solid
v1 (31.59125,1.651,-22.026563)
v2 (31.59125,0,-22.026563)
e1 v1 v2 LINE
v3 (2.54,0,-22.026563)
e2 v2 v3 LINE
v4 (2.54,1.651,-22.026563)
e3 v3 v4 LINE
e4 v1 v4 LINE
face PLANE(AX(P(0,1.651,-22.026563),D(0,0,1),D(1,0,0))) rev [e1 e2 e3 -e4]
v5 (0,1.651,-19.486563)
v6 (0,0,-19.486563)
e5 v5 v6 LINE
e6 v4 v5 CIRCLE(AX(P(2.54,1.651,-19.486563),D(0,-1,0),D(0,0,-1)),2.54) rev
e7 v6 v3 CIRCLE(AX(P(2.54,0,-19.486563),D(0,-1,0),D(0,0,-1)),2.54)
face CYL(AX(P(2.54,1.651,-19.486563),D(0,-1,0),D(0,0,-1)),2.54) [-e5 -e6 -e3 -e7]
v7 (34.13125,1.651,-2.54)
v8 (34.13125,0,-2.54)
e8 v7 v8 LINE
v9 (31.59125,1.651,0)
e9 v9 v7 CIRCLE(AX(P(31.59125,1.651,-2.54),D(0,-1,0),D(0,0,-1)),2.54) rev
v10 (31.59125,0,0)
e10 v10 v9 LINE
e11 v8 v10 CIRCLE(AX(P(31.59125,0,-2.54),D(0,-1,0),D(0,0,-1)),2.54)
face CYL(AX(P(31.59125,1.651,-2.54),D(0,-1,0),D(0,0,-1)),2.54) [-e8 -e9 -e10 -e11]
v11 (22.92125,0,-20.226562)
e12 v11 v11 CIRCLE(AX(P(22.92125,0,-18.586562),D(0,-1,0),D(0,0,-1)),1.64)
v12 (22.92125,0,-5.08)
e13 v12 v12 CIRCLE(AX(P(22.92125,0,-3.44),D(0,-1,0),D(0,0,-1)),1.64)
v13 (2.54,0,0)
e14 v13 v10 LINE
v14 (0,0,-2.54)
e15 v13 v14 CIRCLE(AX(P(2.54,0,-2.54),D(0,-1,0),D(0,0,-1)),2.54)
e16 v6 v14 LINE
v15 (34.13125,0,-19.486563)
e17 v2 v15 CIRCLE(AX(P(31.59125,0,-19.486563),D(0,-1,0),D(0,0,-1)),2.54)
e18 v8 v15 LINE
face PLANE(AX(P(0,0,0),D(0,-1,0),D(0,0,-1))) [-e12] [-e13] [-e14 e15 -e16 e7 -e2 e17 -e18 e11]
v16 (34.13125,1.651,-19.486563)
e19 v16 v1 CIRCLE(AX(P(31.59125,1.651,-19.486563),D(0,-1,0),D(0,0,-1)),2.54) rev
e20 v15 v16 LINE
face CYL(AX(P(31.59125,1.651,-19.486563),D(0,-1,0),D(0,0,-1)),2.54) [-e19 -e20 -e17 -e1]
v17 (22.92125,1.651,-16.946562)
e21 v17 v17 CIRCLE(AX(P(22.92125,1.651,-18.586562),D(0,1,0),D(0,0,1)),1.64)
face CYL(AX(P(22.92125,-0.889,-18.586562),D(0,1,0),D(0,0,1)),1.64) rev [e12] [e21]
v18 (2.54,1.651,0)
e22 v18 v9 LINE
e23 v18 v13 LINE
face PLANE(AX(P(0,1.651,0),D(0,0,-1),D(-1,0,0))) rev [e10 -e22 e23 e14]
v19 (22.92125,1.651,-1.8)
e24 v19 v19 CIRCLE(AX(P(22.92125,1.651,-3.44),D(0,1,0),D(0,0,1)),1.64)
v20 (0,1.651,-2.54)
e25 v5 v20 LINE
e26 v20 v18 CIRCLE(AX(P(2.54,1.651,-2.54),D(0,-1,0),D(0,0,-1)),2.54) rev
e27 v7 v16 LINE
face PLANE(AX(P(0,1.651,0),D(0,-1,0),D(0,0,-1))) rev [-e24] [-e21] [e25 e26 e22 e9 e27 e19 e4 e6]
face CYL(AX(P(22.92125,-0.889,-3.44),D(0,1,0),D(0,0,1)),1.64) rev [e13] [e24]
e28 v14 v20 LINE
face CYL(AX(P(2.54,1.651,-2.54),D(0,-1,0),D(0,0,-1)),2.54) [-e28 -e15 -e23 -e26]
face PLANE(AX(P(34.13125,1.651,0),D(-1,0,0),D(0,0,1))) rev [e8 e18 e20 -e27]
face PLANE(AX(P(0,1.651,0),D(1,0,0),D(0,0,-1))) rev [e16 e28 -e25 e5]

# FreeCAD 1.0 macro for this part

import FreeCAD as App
import Part
import Sketcher
Q = App.Units.Quantity


def edges_at(feature, points):
    """Names of the edges that pass closest to the given points."""
    edges = feature.Shape.Edges
    near = lambda p: min(range(len(edges)), key=lambda i: edges[i].distToShape(Part.Vertex(*p))[0])
    return sorted({f"Edge{near(p) + 1}" for p in points})


def add_polygon(sketch, points):
    """Adds a closed chain of lines whose ends are joined by coincident constraints."""
    first, n = sketch.GeometryCount, len(points)
    for a, b in zip(points, points[1:] + points[:1]):
        sketch.addGeometry(Part.LineSegment(App.Vector(*a, 0), App.Vector(*b, 0)), False)
    for i in range(n):
        sketch.addConstraint(Sketcher.Constraint("Coincident", first + i, 2, first + (i + 1) % n, 1))

doc = App.newDocument("Part")
body = doc.addObject("PartDesign::Body", "Body")

# Sketch on XZ plane
sketch1 = body.newObject("Sketcher::SketchObject", "Sketch")
sketch1.AttachmentSupport = (doc.getObject("XZ_Plane"), [""])
sketch1.MapMode = "FlatFace"
add_polygon(sketch1, [(0, -22.026563), (0, 0), (34.13125, 0), (34.13125, -22.026563)])  # lines 0-3
sketch1.addConstraint([
    Sketcher.Constraint("Vertical", 0),
    Sketcher.Constraint("Horizontal", 1),
    Sketcher.Constraint("Vertical", 2),
    Sketcher.Constraint("Horizontal", 3),
    Sketcher.Constraint("Coincident", 0, 2, -1, 1),
    Sketcher.Constraint("DistanceX", 1, 1, 1, 2, Q("1.34375 in")),
    Sketcher.Constraint("DistanceY", 0, 1, 0, 2, Q("22.026563 mm")),
])
pad1 = body.newObject("PartDesign::Pad", "Pad")
pad1.Profile = sketch1
pad1.Length = Q("0.065 in")
pad1.Reversed = True
doc.recompute()

fillet = body.newObject("PartDesign::Fillet", "Fillet")
fillet.Base = (pad1, edges_at(pad1, [
    (0, 0.826, -22.027),
    (34.131, 0.826, -22.027),
    (34.131, 0.826, 0),
    (0, 0.826, 0),
]))
fillet.Radius = Q("0.1 in")

# Sketch on XZ plane
sketch2 = body.newObject("Sketcher::SketchObject", "Sketch001")
sketch2.AttachmentSupport = (doc.getObject("XZ_Plane"), [""])
sketch2.MapMode = "FlatFace"
sketch2.AttachmentOffset = App.Placement(App.Vector(0, 0, -0.065 * 25.4), App.Rotation())
sketch2.addGeometry([
    Part.Circle(App.Vector(22.92125, -18.586562, 0), App.Vector(0, 0, 1), 1.64),
    Part.Circle(App.Vector(22.92125, -3.44, 0), App.Vector(0, 0, 1), 1.64),
], False)
sketch2.addConstraint([
    Sketcher.Constraint("Equal", 0, 1),
    Sketcher.Constraint("Vertical", 0, 3, 1, 3),
    Sketcher.Constraint("Diameter", 0, Q("3.28 mm")),
    Sketcher.Constraint("DistanceY", 1, 3, -1, 1, Q("3.44 mm")),
    Sketcher.Constraint("DistanceX", -1, 1, 0, 3, Q("22.92125 mm")),
    Sketcher.Constraint("DistanceY", 0, 3, -1, 1, Q("18.586562 mm")),
])
pocket1 = body.newObject("PartDesign::Pocket", "Pocket")
pocket1.Profile = sketch2
pocket1.Length = Q("0.1 in")
pocket1.Reversed = True

doc.recompute()
